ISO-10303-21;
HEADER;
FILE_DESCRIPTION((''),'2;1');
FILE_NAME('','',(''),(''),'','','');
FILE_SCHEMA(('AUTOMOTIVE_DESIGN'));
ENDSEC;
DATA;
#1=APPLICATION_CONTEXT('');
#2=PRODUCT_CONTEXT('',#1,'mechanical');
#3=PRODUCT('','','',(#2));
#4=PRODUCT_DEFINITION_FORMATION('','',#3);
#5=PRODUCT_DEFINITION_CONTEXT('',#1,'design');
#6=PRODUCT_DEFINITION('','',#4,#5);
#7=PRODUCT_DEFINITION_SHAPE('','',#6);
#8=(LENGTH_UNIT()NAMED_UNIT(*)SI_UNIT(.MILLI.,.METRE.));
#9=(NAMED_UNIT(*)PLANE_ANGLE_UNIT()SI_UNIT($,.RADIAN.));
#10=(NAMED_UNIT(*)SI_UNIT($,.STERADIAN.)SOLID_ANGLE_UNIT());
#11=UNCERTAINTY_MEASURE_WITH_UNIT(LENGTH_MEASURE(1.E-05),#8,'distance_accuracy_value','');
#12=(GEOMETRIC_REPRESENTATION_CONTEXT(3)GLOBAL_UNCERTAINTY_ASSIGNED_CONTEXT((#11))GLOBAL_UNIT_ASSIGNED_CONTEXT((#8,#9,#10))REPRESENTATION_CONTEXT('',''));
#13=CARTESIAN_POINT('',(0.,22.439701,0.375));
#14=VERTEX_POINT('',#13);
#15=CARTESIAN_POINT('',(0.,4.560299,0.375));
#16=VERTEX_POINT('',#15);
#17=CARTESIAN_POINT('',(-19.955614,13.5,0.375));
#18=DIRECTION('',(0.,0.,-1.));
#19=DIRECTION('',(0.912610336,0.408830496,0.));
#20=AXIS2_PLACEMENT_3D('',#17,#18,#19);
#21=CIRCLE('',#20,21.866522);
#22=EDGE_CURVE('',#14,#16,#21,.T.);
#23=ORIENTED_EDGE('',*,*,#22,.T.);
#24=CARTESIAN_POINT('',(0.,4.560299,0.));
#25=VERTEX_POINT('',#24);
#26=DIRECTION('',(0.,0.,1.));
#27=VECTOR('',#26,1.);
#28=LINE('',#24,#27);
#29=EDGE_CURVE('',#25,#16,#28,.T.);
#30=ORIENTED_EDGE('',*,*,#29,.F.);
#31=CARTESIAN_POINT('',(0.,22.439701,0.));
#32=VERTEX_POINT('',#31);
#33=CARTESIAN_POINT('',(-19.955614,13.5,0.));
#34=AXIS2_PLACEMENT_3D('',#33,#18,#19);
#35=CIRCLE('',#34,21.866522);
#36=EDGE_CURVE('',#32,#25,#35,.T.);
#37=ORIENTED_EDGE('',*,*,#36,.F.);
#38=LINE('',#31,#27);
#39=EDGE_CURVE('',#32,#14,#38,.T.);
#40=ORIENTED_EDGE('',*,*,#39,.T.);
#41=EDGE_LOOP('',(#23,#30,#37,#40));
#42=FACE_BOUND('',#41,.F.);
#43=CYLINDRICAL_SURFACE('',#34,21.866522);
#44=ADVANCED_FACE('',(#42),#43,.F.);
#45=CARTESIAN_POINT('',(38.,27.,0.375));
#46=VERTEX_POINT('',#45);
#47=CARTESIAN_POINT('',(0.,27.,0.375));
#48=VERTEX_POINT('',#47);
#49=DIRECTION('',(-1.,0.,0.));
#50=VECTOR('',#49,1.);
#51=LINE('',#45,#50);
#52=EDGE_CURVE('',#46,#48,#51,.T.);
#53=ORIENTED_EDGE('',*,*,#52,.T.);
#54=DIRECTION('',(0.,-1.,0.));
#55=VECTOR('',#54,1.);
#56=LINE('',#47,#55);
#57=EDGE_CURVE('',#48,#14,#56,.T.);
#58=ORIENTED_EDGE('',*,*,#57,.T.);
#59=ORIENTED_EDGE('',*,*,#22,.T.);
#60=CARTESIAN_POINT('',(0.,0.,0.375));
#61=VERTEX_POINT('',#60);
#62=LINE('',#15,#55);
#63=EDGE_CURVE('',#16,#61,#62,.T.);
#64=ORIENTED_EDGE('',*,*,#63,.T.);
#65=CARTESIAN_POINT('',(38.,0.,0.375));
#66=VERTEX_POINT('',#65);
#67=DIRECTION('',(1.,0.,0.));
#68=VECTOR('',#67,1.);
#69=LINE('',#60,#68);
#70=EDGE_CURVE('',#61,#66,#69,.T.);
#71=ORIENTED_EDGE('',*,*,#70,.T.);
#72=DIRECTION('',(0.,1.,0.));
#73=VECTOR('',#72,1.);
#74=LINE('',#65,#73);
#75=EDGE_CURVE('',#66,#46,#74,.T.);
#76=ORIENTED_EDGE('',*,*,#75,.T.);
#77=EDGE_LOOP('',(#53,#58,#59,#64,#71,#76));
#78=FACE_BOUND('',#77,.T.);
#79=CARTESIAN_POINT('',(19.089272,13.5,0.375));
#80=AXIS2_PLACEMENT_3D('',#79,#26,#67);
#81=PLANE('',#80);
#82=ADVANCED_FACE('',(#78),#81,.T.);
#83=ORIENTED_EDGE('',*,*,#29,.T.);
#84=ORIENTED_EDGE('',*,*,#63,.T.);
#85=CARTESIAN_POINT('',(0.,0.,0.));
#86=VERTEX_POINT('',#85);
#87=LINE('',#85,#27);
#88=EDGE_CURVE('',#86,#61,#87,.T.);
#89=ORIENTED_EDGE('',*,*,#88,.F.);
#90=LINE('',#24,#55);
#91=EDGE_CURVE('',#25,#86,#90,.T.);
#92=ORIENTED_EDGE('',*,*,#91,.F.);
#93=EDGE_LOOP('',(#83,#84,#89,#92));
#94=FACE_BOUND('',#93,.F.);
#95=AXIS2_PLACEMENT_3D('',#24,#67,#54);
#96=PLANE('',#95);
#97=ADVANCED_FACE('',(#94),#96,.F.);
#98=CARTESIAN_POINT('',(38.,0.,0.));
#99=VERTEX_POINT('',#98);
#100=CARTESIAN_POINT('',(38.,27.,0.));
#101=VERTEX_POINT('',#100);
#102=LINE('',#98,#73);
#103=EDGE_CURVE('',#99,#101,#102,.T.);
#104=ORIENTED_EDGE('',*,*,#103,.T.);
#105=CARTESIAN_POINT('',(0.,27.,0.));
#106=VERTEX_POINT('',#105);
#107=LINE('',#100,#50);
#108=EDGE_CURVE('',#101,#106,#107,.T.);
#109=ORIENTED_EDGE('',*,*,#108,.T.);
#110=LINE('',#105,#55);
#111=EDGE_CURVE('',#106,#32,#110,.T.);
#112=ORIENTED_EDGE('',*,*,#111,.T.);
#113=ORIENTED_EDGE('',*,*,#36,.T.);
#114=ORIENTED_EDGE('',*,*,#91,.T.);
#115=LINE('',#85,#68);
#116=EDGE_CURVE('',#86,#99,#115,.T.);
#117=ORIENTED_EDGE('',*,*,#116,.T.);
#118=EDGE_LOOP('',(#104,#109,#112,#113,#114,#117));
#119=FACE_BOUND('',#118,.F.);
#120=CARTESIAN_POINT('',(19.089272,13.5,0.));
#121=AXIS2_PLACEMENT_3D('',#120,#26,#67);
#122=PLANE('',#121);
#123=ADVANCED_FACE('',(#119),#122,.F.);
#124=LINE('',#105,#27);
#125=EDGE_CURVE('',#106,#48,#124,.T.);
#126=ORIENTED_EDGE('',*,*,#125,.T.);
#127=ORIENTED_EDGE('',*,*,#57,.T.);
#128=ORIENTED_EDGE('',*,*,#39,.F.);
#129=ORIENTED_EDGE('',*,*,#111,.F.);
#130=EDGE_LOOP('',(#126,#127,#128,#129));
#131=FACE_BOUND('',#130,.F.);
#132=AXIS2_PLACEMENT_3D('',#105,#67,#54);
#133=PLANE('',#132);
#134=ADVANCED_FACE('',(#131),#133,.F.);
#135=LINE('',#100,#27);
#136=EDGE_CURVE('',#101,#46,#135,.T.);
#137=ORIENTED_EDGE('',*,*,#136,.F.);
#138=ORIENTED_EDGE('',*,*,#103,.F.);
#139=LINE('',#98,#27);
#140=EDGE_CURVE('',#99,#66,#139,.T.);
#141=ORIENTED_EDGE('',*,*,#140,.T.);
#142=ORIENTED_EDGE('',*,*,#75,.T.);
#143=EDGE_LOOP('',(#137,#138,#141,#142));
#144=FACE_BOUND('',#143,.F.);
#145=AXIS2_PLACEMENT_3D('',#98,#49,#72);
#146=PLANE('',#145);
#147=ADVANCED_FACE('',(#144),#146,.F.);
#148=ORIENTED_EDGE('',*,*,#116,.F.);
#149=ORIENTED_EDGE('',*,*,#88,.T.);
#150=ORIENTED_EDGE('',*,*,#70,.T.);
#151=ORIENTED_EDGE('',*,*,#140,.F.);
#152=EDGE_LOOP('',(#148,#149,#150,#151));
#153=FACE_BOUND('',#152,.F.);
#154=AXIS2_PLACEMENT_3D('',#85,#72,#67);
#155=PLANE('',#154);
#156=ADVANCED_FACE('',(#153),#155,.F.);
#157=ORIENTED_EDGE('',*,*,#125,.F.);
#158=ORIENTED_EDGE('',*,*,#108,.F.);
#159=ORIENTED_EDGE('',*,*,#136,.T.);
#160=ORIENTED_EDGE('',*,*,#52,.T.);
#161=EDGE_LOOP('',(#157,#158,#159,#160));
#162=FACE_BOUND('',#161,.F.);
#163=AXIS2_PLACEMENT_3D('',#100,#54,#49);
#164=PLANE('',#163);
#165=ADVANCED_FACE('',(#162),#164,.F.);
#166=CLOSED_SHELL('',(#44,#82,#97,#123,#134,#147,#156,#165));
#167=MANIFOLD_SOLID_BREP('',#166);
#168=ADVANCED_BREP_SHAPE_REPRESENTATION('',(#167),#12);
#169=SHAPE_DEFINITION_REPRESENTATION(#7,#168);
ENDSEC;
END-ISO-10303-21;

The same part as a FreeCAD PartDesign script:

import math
import FreeCAD as App
import Part
import Sketcher

V = App.Vector

doc = App.newDocument("Part")
params = doc.addObject("Spreadsheet::Sheet", "Params")
for row, (alias, value) in enumerate([
    ("sketch1_width", "38 mm"),
    ("sketch1_height", "27 mm"),
    ("pad1_length", "0.375 mm"),
], start=1):
    params.set(f"A{row}", alias)
    params.set(f"B{row}", "=" + value)
    params.setAlias(f"B{row}", alias)

body = doc.addObject("PartDesign::Body", "Body")

# Sketch on XY plane
sketch1 = body.newObject("Sketcher::SketchObject", "Sketch")
sketch1.AttachmentSupport = (doc.getObject("XY_Plane"), [""])
sketch1.MapMode = "FlatFace"
sketch1.addGeometry([
    Part.LineSegment(V(0, 4.6, 0), V(0, 0, 0)),  # 0
    Part.LineSegment(V(0, 0, 0), V(38, 0, 0)),  # 1
    Part.LineSegment(V(38, 0, 0), V(38, 27, 0)),  # 2
    Part.LineSegment(V(38, 27, 0), V(0, 27, 0)),  # 3
    Part.LineSegment(V(0, 27, 0), V(0, 22.4, 0)),  # 4
    Part.ArcOfCircle(Part.Circle(V(-20, 13.5, 0), V(0, 0, 1), 21.9), math.radians(-24), math.radians(24)),  # 5
], False)
sketch1.addConstraint([
    Sketcher.Constraint("Coincident", 0, 2, 1, 1),
    Sketcher.Constraint("Coincident", 1, 2, 2, 1),
    Sketcher.Constraint("Coincident", 2, 2, 3, 1),
    Sketcher.Constraint("Coincident", 3, 2, 4, 1),
    Sketcher.Constraint("Coincident", 4, 2, 5, 2),
    Sketcher.Constraint("Coincident", 5, 1, 0, 1),
    Sketcher.Constraint("Vertical", 0),
    Sketcher.Constraint("Horizontal", 1),
    Sketcher.Constraint("Vertical", 2),
    Sketcher.Constraint("Horizontal", 3),
    Sketcher.Constraint("Vertical", 4),
    Sketcher.Constraint("Coincident", 0, 2, -1, 1),
    Sketcher.Constraint("PointOnObject", 3, 2, -2),
    Sketcher.Constraint("Equal", 0, 4),
    Sketcher.Constraint("DistanceX", 1, 1, 1, 2, 38.0),
    Sketcher.Constraint("DistanceY", 2, 1, 2, 2, 27.0),
    Sketcher.Constraint("Radius", 5, 21.866522),
    Sketcher.Constraint("DistanceY", 0, 2, 0, 1, 4.560299),
])
sketch1.setExpression("Constraints[14]", "Params.sketch1_width")
sketch1.setExpression("Constraints[15]", "Params.sketch1_height")
pad1 = body.newObject("PartDesign::Pad", "Pad")
pad1.Profile = sketch1
pad1.setExpression("Length", "Params.pad1_length")

doc.recompute()
